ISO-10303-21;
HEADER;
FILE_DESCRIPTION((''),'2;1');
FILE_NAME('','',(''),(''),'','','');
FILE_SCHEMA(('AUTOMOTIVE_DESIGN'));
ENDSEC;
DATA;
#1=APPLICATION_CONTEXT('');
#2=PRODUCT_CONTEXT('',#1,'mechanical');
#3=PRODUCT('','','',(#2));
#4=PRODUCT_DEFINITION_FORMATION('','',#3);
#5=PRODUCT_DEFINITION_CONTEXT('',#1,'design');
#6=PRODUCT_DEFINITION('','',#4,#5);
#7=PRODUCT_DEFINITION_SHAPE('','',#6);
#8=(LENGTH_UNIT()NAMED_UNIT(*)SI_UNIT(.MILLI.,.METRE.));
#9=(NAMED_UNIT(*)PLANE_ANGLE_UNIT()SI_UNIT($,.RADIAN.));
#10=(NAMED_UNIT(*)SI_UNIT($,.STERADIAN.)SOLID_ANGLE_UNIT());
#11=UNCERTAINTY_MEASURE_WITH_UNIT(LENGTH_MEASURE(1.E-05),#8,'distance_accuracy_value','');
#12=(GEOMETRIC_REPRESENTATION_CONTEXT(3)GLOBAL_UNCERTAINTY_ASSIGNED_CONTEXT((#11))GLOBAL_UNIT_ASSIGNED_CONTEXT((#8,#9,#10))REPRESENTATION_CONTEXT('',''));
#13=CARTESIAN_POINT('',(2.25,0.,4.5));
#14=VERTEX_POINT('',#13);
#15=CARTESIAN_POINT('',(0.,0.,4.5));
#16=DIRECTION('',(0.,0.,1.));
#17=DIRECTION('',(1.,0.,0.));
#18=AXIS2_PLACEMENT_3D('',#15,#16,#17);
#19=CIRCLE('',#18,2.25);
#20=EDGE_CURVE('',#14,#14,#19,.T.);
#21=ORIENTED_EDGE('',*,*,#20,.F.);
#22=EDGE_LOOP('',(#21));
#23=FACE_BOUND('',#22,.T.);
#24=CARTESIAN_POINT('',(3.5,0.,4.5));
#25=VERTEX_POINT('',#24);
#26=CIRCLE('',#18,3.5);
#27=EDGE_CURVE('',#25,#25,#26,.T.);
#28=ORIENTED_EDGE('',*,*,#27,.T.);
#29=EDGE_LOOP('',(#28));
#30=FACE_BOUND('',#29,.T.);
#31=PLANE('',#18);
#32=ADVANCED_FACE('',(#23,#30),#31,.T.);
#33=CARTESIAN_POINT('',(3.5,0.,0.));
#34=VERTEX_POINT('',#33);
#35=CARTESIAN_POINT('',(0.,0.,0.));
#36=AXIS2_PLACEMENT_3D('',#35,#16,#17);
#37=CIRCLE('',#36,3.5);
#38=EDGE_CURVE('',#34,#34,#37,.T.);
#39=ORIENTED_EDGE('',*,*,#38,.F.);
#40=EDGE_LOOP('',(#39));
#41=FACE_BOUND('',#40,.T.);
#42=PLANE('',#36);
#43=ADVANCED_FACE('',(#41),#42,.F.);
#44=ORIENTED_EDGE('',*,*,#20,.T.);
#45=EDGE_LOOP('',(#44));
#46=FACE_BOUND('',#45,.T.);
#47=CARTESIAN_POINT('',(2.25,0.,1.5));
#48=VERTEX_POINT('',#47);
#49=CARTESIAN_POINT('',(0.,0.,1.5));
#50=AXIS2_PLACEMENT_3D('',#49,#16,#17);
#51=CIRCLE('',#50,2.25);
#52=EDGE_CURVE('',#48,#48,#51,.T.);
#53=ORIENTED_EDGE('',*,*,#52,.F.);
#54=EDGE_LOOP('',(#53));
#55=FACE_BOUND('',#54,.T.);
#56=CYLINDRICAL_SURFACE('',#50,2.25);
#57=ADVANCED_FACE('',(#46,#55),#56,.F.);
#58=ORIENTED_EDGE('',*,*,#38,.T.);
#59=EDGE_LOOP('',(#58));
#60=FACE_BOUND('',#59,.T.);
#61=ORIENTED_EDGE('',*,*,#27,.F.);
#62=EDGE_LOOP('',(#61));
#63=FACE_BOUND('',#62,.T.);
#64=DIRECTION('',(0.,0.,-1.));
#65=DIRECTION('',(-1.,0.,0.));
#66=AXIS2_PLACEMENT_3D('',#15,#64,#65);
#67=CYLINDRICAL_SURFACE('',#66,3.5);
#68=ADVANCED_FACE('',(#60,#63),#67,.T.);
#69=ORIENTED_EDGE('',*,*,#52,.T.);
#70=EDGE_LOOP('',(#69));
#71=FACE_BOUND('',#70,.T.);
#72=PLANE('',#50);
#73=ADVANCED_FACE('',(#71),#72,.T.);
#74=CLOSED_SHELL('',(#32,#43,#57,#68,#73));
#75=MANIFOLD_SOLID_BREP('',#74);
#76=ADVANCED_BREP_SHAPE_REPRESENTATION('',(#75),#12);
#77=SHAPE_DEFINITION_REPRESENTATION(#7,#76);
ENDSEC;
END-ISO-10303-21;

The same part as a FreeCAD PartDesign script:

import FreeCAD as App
import Part
import Sketcher
Q = App.Units.Quantity

doc = App.newDocument("Part")
body = doc.addObject("PartDesign::Body", "Body")

# Sketch on XY plane
sketch1 = body.newObject("Sketcher::SketchObject", "Sketch")
sketch1.AttachmentSupport = (doc.getObject("XY_Plane"), [""])
sketch1.MapMode = "FlatFace"
sketch1.addGeometry(Part.Circle(App.Vector(0, 0, 0), App.Vector(0, 0, 1), 3.5), False)
sketch1.addConstraint([
    Sketcher.Constraint("Coincident", 0, 3, -1, 1),
    Sketcher.Constraint("Diameter", 0, Q("7 mm")),
])
pad1 = body.newObject("PartDesign::Pad", "Pad")
pad1.Profile = sketch1
pad1.Length = 4.5

# Sketch on XY plane
sketch2 = body.newObject("Sketcher::SketchObject", "Sketch001")
sketch2.AttachmentSupport = (doc.getObject("XY_Plane"), [""])
sketch2.MapMode = "FlatFace"
sketch2.AttachmentOffset = App.Placement(App.Vector(0, 0, 4.5), App.Rotation())
sketch2.addGeometry(Part.Circle(App.Vector(0, 0, 0), App.Vector(0, 0, 1), 2.2), False)
sketch2.addConstraint([
    Sketcher.Constraint("Coincident", 0, 3, -1, 1),
    Sketcher.Constraint("Diameter", 0, Q("4.5 mm")),
])
pocket1 = body.newObject("PartDesign::Pocket", "Pocket")
pocket1.Profile = sketch2
pocket1.Length = 3

doc.recompute()
